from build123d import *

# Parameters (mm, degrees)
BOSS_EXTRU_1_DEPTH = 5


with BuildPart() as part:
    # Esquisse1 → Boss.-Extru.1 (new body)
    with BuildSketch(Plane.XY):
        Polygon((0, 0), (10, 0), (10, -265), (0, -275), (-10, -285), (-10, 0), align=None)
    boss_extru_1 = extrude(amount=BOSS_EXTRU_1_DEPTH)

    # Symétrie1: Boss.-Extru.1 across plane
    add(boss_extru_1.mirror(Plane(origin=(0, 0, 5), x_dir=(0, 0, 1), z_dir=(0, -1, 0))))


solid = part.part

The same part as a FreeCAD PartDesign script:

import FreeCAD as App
import Part
import Sketcher

V = App.Vector
Q = App.Units.Quantity

doc = App.newDocument("Part")
body = doc.addObject("PartDesign::Body", "Body")

# Sketch on XY plane
sketch1 = body.newObject("Sketcher::SketchObject", "Sketch")
sketch1.AttachmentSupport = (doc.getObject("XY_Plane"), [""])
sketch1.MapMode = "FlatFace"
sketch1.addGeometry(Part.LineSegment(V(10, 0, 0), V(-10, 0, 0)), False)
sketch1.addGeometry(Part.LineSegment(V(-10, 0, 0), V(-10, -285, 0)), False)
sketch1.addGeometry(Part.LineSegment(V(-10, -285, 0), V(10, -265, 0)), False)
sketch1.addGeometry(Part.LineSegment(V(10, -265, 0), V(10, 0, 0)), False)
sketch1.addConstraint(Sketcher.Constraint("Coincident", 0, 2, 1, 1))
sketch1.addConstraint(Sketcher.Constraint("Coincident", 1, 2, 2, 1))
sketch1.addConstraint(Sketcher.Constraint("Coincident", 2, 2, 3, 1))
sketch1.addConstraint(Sketcher.Constraint("Coincident", 3, 2, 0, 1))
sketch1.addConstraint(Sketcher.Constraint("Horizontal", 0))
sketch1.addConstraint(Sketcher.Constraint("Vertical", 1))
sketch1.addConstraint(Sketcher.Constraint("Vertical", 3))
sketch1.addConstraint(Sketcher.Constraint("Symmetric", 0, 2, 3, 2, -1, 1))
sketch1.addConstraint(Sketcher.Constraint("DistanceX", 0, 2, 0, 1, Q("20 mm")))
sketch1.addConstraint(Sketcher.Constraint("DistanceY", 1, 2, 1, 1, Q("285 mm")))
sketch1.addConstraint(Sketcher.Constraint("DistanceY", 3, 1, 3, 2, Q("265 mm")))
pad1 = body.newObject("PartDesign::Pad", "Pad")
pad1.Profile = sketch1
pad1.Length = 5
doc.recompute()

mirrored = body.newObject("PartDesign::Mirrored", "Mirrored")
mirrored.Originals = [pad1]
mirrored.MirrorPlane = (doc.getObject("XZ_Plane"), [""])
body.Tip = mirrored

doc.recompute()
